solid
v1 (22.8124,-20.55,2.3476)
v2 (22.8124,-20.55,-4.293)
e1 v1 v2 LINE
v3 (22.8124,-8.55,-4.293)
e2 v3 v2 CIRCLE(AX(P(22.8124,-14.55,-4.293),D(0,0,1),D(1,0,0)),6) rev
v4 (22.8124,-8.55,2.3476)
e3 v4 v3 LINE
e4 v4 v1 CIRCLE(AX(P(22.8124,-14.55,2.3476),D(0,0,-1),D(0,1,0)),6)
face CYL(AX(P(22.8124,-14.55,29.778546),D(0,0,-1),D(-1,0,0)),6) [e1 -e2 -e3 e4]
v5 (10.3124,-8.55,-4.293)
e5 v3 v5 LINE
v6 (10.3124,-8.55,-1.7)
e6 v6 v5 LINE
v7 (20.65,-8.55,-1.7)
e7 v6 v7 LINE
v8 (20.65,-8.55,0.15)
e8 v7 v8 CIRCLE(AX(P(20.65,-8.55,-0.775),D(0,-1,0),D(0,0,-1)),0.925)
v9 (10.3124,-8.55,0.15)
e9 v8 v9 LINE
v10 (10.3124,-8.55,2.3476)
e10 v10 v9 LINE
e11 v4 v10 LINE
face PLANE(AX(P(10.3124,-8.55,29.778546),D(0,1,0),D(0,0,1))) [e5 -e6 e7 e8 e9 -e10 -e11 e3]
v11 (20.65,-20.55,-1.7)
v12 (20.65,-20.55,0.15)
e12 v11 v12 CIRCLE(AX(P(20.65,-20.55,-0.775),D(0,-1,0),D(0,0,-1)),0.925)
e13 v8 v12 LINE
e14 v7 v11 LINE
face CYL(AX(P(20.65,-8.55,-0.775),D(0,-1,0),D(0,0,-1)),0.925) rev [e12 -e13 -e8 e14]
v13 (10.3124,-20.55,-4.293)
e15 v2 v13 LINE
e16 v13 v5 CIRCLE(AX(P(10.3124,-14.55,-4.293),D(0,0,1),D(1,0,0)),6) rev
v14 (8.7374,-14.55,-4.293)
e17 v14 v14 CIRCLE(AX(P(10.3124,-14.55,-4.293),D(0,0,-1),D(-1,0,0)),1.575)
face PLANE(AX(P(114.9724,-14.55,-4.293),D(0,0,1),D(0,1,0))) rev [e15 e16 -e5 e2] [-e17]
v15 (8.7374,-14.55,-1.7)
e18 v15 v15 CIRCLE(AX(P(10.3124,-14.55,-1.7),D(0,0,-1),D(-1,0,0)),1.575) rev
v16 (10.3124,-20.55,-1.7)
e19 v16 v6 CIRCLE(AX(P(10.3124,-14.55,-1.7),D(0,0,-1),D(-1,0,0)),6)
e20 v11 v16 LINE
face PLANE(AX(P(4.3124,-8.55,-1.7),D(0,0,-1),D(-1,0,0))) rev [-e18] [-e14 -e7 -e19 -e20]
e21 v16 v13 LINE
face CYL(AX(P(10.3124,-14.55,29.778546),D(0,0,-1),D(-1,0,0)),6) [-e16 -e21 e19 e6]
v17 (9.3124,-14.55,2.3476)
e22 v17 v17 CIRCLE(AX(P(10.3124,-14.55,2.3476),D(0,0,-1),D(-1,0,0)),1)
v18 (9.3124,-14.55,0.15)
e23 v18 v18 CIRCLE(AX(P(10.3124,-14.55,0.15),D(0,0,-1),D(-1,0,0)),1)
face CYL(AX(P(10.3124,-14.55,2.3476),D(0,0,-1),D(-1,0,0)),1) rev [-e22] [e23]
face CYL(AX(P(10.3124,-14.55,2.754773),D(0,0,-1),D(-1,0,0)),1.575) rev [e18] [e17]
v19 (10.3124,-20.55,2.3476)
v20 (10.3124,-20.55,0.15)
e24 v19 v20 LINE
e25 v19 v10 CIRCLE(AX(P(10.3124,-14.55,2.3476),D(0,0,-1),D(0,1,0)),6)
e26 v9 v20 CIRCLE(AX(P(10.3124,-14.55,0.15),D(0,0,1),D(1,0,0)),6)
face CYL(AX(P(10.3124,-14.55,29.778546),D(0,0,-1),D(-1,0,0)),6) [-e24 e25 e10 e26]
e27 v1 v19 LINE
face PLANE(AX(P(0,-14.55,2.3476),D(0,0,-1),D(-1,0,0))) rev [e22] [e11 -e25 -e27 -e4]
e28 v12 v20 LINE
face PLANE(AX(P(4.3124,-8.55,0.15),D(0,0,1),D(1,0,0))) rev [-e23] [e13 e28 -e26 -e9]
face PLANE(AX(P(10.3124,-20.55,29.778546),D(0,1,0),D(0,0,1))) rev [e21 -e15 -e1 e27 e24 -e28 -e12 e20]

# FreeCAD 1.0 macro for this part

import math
import FreeCAD as App
import Part
import Sketcher

V = App.Vector

doc = App.newDocument("Part")
body = doc.addObject("PartDesign::Body", "Body")

sketch1 = body.newObject("Sketcher::SketchObject", "Sketch")
sketch1.AttachmentSupport = (doc.getObject("XY_Plane"), [""])
sketch1.MapMode = "FlatFace"
sketch1.addGeometry([
    Part.LineSegment(V(23, -9, 0), V(10, -9, 0)),
    Part.ArcOfCircle(Part.Circle(V(10, -15, 0), V(0, 0, 1), 6), math.radians(90), math.radians(270)),
    Part.LineSegment(V(10, -21, 0), V(23, -21, 0)),
    Part.ArcOfCircle(Part.Circle(V(23, -15, 0), V(0, 0, 1), 6), math.radians(-90), math.radians(90)),
], False)
sketch1.addConstraint([
    Sketcher.Constraint("Tangent", 0, 2, 1, 1),
    Sketcher.Constraint("Tangent", 1, 2, 2, 1),
    Sketcher.Constraint("Tangent", 2, 2, 3, 1),
    Sketcher.Constraint("Tangent", 3, 2, 0, 1),
    Sketcher.Constraint("Horizontal", 0),
    Sketcher.Constraint("Horizontal", 2),
    Sketcher.Constraint("Radius", 1, 6.0),
    Sketcher.Constraint("DistanceX", 0, 2, 0, 1, 12.5),
    Sketcher.Constraint("DistanceY", 1, 3, -1, 1, 14.55),
    Sketcher.Constraint("DistanceX", -1, 1, 1, 3, 10.3124),
])
pad1 = body.newObject("PartDesign::Pad", "Pad")
pad1.Profile = sketch1
pad1.Type = "TwoLengths"
pad1.Length = 2.3476
pad1.Length2 = 4.293

sketch2 = body.newObject("Sketcher::SketchObject", "Sketch001")
sketch2.AttachmentSupport = (doc.getObject("XZ_Plane"), [""])
sketch2.MapMode = "FlatFace"
sketch2.AttachmentOffset = App.Placement(V(0, 0, 20.55), App.Rotation())
sketch2.addGeometry([
    Part.LineSegment(V(20.6, 0.1, 0), V(4.3, 0.1, 0)),
    Part.ArcOfCircle(Part.Circle(V(4.3, -0.8, 0), V(0, 0, 1), 0.9), math.radians(90), math.radians(270)),
    Part.LineSegment(V(4.3, -1.7, 0), V(20.6, -1.7, 0)),
    Part.ArcOfCircle(Part.Circle(V(20.6, -0.8, 0), V(0, 0, 1), 0.9), math.radians(-90), math.radians(90)),
], False)
sketch2.addConstraint([
    Sketcher.Constraint("Tangent", 0, 2, 1, 1),
    Sketcher.Constraint("Tangent", 1, 2, 2, 1),
    Sketcher.Constraint("Tangent", 2, 2, 3, 1),
    Sketcher.Constraint("Tangent", 3, 2, 0, 1),
    Sketcher.Constraint("Horizontal", 0),
    Sketcher.Constraint("Horizontal", 2),
    Sketcher.Constraint("Radius", 1, 0.925),
    Sketcher.Constraint("DistanceY", 1, 2, -1, 1, 1.7),
    Sketcher.Constraint("DistanceX", -1, 1, 3, 3, 20.65),
    Sketcher.Constraint("DistanceX", 0, 2, 0, 1, 16.3376),
])
pocket1 = body.newObject("PartDesign::Pocket", "Pocket")
pocket1.Profile = sketch2
pocket1.Type = "ThroughAll"

sketch3 = body.newObject("Sketcher::SketchObject", "Sketch002")
sketch3.AttachmentSupport = (doc.getObject("XY_Plane"), [""])
sketch3.MapMode = "FlatFace"
sketch3.AttachmentOffset = App.Placement(V(0, 0, -4.293), App.Rotation())
sketch3.addGeometry(Part.Circle(V(10.3, -14.6, 0), V(0, 0, 1), 1.6), False)
sketch3.addConstraint([
    Sketcher.Constraint("Diameter", 0, 3.15),
    Sketcher.Constraint("DistanceY", 0, 3, -1, 1, 14.55),
    Sketcher.Constraint("DistanceX", -1, 1, 0, 3, 10.3124),
])
pocket2 = body.newObject("PartDesign::Pocket", "Pocket001")
pocket2.Profile = sketch3
pocket2.Length = 2.593
pocket2.Reversed = True

sketch4 = body.newObject("Sketcher::SketchObject", "Sketch003")
sketch4.AttachmentSupport = (doc.getObject("XY_Plane"), [""])
sketch4.MapMode = "FlatFace"
sketch4.AttachmentOffset = App.Placement(V(0, 0, 0.15), App.Rotation())
sketch4.addGeometry(Part.Circle(V(10.3, -14.6, 0), V(0, 0, 1), 1), False)
sketch4.addConstraint([
    Sketcher.Constraint("Diameter", 0, 2.0),
    Sketcher.Constraint("DistanceY", 0, 3, -1, 1, 14.55),
    Sketcher.Constraint("DistanceX", -1, 1, 0, 3, 10.3124),
])
pocket3 = body.newObject("PartDesign::Pocket", "Pocket002")
pocket3.Profile = sketch4
pocket3.Type = "ThroughAll"
pocket3.Reversed = True

doc.recompute()
